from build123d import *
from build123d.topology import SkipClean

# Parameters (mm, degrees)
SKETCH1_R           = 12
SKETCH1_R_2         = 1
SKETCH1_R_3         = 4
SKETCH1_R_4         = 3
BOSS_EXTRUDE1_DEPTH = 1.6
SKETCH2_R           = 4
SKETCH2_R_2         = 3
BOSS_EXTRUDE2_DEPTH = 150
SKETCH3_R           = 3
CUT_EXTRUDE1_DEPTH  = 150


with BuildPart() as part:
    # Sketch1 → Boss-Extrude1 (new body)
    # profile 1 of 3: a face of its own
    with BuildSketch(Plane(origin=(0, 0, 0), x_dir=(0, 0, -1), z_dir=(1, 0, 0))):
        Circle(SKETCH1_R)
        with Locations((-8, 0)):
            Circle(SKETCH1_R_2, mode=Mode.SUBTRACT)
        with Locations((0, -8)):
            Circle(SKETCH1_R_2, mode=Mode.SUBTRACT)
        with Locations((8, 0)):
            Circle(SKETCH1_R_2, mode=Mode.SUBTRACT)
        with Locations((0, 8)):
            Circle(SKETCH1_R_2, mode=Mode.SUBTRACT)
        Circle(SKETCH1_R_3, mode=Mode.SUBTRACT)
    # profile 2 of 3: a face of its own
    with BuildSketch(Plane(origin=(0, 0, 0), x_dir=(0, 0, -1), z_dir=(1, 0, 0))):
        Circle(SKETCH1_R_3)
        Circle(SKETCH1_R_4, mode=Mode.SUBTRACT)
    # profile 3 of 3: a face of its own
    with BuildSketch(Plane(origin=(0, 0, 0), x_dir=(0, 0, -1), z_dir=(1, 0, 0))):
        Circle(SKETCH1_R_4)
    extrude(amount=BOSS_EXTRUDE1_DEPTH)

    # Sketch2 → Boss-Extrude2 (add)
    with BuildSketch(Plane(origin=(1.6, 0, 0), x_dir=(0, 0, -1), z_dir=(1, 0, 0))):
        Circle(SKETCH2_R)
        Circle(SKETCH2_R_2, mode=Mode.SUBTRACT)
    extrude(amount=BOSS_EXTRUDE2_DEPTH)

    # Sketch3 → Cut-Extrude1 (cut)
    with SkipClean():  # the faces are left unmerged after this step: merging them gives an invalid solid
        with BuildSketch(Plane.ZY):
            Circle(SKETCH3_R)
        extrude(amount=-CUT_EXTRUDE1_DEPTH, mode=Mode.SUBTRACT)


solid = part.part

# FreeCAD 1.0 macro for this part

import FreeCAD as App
import Part
import Sketcher
Q = App.Units.Quantity

doc = App.newDocument("Part")
body = doc.addObject("PartDesign::Body", "Body")

# Sketch on YZ plane
sketch1 = body.newObject("Sketcher::SketchObject", "Sketch")
sketch1.AttachmentSupport = (doc.getObject("YZ_Plane"), [""])
sketch1.MapMode = "FlatFace"
sketch1.addGeometry([
    Part.Circle(App.Vector(0, 0, 0), App.Vector(0, 0, 1), 12),  # 0
    Part.Circle(App.Vector(-8, 0, 0), App.Vector(0, 0, 1), 1),  # 1
    Part.Circle(App.Vector(0, 8, 0), App.Vector(0, 0, 1), 1),  # 2
    Part.Circle(App.Vector(0, -8, 0), App.Vector(0, 0, 1), 1),  # 3
    Part.Circle(App.Vector(8, 0, 0), App.Vector(0, 0, 1), 1),  # 4
], False)
sketch1.addConstraint([
    Sketcher.Constraint("Coincident", 0, 3, -1, 1),
    Sketcher.Constraint("Equal", 1, 2),
    Sketcher.Constraint("Equal", 2, 3),
    Sketcher.Constraint("Equal", 3, 4),
    Sketcher.Constraint("Symmetric", 2, 3, 3, 3, -1, 1),
    Sketcher.Constraint("Symmetric", 1, 3, 4, 3, -1, 1),
    Sketcher.Constraint("PointOnObject", 1, 3, -1),
    Sketcher.Constraint("PointOnObject", 2, 3, -2),
    Sketcher.Constraint("Diameter", 0, Q("24 mm")),
    Sketcher.Constraint("Diameter", 1, Q("2 mm")),
    Sketcher.Constraint("DistanceX", 1, 3, -1, 1, Q("8 mm")),
    Sketcher.Constraint("DistanceY", -1, 1, 2, 3, Q("8 mm")),
])
pad1 = body.newObject("PartDesign::Pad", "Pad")
pad1.Profile = sketch1
pad1.Length = 1.6

# Sketch on YZ plane
sketch2 = body.newObject("Sketcher::SketchObject", "Sketch001")
sketch2.AttachmentSupport = (doc.getObject("YZ_Plane"), [""])
sketch2.MapMode = "FlatFace"
sketch2.AttachmentOffset = App.Placement(App.Vector(0, 0, 1.6), App.Rotation())
sketch2.addGeometry([
    Part.Circle(App.Vector(0, 0, 0), App.Vector(0, 0, 1), 4),
    Part.Circle(App.Vector(0, 0, 0), App.Vector(0, 0, 1), 3),
], False)
sketch2.addConstraint([
    Sketcher.Constraint("Coincident", 0, 3, -1, 1),
    Sketcher.Constraint("Coincident", 1, 3, -1, 1),
    Sketcher.Constraint("Diameter", 0, Q("8 mm")),
    Sketcher.Constraint("Diameter", 1, Q("6 mm")),
])
pad2 = body.newObject("PartDesign::Pad", "Pad001")
pad2.Profile = sketch2
pad2.Length = 150

# Sketch on YZ plane
sketch3 = body.newObject("Sketcher::SketchObject", "Sketch002")
sketch3.AttachmentSupport = (doc.getObject("YZ_Plane"), [""])
sketch3.MapMode = "FlatFace"
sketch3.addGeometry(Part.Circle(App.Vector(0, 0, 0), App.Vector(0, 0, 1), 3), False)
sketch3.addConstraint([
    Sketcher.Constraint("Coincident", 0, 3, -1, 1),
    Sketcher.Constraint("Diameter", 0, Q("6 mm")),
])
pocket1 = body.newObject("PartDesign::Pocket", "Pocket")
pocket1.Profile = sketch3
pocket1.Length = 150
pocket1.Reversed = True

doc.recompute()
